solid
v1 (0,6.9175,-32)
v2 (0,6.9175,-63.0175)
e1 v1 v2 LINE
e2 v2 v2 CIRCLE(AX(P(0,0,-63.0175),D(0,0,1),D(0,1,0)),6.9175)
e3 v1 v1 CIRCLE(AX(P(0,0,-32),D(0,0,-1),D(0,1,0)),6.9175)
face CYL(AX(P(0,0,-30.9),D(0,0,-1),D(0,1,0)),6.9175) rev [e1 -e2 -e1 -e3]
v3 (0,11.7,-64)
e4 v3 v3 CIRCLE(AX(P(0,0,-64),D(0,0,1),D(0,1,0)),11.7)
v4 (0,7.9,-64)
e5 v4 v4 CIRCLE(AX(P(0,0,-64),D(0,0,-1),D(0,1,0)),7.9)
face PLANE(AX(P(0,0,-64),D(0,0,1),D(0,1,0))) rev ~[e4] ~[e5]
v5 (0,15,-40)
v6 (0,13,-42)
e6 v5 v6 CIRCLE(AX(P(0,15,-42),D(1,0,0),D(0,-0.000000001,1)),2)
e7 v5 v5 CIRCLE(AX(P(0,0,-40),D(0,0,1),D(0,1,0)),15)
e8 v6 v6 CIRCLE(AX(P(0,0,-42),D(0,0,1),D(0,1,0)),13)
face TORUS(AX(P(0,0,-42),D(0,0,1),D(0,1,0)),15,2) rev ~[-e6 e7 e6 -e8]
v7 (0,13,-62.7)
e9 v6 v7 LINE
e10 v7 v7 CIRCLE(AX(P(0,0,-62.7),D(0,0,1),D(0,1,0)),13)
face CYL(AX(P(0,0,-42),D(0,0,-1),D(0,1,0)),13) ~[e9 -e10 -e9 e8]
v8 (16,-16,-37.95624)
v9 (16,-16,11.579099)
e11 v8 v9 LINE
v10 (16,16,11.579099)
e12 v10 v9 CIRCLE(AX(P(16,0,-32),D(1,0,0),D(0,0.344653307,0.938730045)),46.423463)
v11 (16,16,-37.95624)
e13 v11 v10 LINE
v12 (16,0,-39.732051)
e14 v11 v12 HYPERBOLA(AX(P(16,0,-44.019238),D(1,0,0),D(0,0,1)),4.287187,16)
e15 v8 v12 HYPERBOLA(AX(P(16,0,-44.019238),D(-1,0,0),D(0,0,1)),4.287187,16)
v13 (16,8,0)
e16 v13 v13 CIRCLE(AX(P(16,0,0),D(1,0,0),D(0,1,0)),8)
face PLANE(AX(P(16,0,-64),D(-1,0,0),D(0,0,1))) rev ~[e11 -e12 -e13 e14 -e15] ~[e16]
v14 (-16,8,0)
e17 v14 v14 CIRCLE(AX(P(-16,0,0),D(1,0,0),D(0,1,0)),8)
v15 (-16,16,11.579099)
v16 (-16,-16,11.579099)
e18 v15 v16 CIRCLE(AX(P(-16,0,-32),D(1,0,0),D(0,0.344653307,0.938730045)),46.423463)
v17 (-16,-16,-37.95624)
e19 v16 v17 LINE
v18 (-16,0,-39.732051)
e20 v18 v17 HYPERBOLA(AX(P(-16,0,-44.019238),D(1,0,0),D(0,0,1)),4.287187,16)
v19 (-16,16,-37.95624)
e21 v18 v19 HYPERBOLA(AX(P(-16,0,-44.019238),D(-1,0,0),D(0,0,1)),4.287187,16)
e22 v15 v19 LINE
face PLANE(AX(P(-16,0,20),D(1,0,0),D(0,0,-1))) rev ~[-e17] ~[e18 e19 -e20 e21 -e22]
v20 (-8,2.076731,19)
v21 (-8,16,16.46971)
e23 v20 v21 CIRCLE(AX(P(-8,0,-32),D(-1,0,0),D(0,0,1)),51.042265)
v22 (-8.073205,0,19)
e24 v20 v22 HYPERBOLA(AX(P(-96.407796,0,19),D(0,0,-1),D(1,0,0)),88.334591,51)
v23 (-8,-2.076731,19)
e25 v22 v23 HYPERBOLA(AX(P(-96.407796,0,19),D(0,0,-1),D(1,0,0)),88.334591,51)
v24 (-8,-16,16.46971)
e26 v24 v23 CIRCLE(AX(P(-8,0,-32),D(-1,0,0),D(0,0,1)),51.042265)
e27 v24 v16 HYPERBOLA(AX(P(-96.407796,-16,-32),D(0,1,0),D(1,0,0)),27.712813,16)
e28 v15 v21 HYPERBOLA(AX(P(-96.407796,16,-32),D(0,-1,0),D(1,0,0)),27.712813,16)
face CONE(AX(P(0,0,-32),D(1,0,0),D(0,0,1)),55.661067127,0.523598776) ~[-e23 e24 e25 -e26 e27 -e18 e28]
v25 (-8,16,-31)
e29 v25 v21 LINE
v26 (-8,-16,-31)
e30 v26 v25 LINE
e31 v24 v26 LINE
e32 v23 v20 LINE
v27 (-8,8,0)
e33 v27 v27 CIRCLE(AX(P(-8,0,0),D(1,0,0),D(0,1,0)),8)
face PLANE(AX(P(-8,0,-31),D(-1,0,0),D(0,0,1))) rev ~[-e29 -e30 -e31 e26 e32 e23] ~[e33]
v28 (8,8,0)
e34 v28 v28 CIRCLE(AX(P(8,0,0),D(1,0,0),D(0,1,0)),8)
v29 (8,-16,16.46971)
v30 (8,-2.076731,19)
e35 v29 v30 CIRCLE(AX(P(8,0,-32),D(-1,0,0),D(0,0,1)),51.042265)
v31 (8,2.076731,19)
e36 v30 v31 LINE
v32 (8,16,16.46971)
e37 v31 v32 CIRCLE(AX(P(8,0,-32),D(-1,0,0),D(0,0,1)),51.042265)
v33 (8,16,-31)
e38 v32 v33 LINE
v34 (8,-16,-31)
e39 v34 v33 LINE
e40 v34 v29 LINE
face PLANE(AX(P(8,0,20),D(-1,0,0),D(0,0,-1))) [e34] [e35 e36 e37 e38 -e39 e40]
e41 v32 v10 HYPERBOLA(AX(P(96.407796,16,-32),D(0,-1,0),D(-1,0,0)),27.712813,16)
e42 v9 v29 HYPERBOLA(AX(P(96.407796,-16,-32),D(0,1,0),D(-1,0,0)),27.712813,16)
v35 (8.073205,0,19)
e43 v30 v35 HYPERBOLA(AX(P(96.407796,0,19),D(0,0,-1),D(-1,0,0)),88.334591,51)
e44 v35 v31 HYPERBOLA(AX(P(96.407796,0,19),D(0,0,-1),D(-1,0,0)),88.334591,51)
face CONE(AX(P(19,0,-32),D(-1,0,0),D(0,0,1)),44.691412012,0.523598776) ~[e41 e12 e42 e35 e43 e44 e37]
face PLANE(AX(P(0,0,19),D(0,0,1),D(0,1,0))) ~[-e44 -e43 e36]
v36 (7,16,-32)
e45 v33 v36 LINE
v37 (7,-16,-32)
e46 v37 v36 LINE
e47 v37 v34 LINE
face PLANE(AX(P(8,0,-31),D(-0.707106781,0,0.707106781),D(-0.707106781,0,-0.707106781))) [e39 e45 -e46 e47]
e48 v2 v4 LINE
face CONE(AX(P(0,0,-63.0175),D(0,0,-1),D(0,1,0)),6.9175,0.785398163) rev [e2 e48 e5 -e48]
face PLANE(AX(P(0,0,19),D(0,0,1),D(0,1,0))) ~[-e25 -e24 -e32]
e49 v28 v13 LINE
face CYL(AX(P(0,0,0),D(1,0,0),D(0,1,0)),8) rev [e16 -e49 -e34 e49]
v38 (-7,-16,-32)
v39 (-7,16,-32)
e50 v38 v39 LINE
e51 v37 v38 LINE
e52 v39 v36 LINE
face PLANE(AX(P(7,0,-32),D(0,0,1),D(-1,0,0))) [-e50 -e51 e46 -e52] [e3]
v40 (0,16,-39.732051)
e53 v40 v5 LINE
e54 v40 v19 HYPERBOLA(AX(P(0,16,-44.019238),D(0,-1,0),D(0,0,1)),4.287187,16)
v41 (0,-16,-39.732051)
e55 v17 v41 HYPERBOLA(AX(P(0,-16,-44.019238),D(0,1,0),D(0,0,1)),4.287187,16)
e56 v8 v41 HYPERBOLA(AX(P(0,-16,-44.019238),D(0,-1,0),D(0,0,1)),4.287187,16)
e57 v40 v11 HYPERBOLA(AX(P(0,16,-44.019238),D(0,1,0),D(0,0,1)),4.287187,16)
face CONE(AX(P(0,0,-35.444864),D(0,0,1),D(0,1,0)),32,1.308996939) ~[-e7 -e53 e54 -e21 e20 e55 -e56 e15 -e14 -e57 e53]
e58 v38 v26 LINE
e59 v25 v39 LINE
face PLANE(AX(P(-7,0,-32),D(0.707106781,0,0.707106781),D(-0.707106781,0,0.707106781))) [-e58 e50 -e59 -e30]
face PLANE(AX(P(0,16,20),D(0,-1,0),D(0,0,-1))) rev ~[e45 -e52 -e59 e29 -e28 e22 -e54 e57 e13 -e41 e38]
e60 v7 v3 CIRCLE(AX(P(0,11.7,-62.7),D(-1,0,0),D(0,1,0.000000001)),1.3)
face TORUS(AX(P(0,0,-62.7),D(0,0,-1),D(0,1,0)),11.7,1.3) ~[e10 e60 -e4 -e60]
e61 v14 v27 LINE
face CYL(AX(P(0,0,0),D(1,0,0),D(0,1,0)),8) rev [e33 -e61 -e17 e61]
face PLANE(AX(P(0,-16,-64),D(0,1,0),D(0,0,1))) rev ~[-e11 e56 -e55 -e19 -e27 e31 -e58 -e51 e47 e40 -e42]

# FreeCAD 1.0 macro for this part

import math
import FreeCAD as App
import Part
import Sketcher
Q = App.Units.Quantity


def add_polygon(sketch, points):
    """Adds a closed chain of lines whose ends are joined by coincident constraints."""
    first, n = sketch.GeometryCount, len(points)
    for a, b in zip(points, points[1:] + points[:1]):
        sketch.addGeometry(Part.LineSegment(App.Vector(*a, 0), App.Vector(*b, 0)), False)
    for i in range(n):
        sketch.addConstraint(Sketcher.Constraint("Coincident", first + i, 2, first + (i + 1) % n, 1))

doc = App.newDocument("Part")
body = doc.addObject("PartDesign::Body", "Body")

sketch1 = doc.addObject("Sketcher::SketchObject", "Sketch")
body.addObject(sketch1)
sketch1.AttachmentSupport = (doc.YZ_Plane, [""])
sketch1.MapMode = "FlatFace"
sketch1.addGeometry([
    Part.LineSegment(App.Vector(32, 19, 0), App.Vector(0, 19, 0)),
    Part.LineSegment(App.Vector(0, 19, 0), App.Vector(0, -64, 0)),
    Part.LineSegment(App.Vector(0, -64, 0), App.Vector(11.7, -64, 0)),
    Part.ArcOfCircle(Part.Circle(App.Vector(11.7, -62.7, 0), App.Vector(0, 0, 1), 1.3), math.radians(-90), math.radians(0)),
    Part.LineSegment(App.Vector(13, -62.7, 0), App.Vector(13, -42, 0)),
    Part.ArcOfCircle(Part.Circle(App.Vector(15, -42, 0), App.Vector(0, 0, 1), 2), math.radians(90), math.radians(180)),
    Part.LineSegment(App.Vector(15, -40, 0), App.Vector(32, -35.4, 0)),
    Part.LineSegment(App.Vector(32, -35.4, 0), App.Vector(32, 19, 0)),
], False)
sketch1.addConstraint([
    Sketcher.Constraint("Coincident", 0, 2, 1, 1),
    Sketcher.Constraint("Coincident", 1, 2, 2, 1),
    Sketcher.Constraint("Tangent", 2, 2, 3, 1),
    Sketcher.Constraint("Tangent", 3, 2, 4, 1),
    Sketcher.Constraint("Tangent", 4, 2, 5, 2),
    Sketcher.Constraint("Coincident", 5, 1, 6, 1),
    Sketcher.Constraint("Coincident", 6, 2, 7, 1),
    Sketcher.Constraint("Coincident", 7, 2, 0, 1),
    Sketcher.Constraint("Horizontal", 0),
    Sketcher.Constraint("Vertical", 1),
    Sketcher.Constraint("Horizontal", 2),
    Sketcher.Constraint("Vertical", 4),
    Sketcher.Constraint("Vertical", 7),
    Sketcher.Constraint("PointOnObject", 0, 2, -2),
    Sketcher.Constraint("Radius", 5, Q("2 mm")),
    Sketcher.Constraint("Radius", 3, Q("1.3 mm")),
    Sketcher.Constraint("DistanceX", 0, 2, 0, 1, Q("32 mm")),
    Sketcher.Constraint("DistanceY", 1, 2, 1, 1, Q("83 mm")),
    Sketcher.Constraint("Angle", 6, Q("15 deg")),
    Sketcher.Constraint("DistanceX", 2, 1, 2, 2, Q("11.7 mm")),
    Sketcher.Constraint("DistanceY", 4, 1, 4, 2, Q("20.7 mm")),
    Sketcher.Constraint("DistanceY", 5, 3, -1, 1, Q("42 mm")),
    Sketcher.Constraint("DistanceX", -1, 1, 5, 1, Q("15 mm")),
])
revolution = doc.addObject("PartDesign::Revolution", "Revolution")
body.addObject(revolution)
revolution.Profile = sketch1
revolution.ReferenceAxis = (sketch1, ["V_Axis"])
revolution.Angle = 360

sketch2 = doc.addObject("Sketcher::SketchObject", "Sketch001")
body.addObject(sketch2)
sketch2.AttachmentSupport = (doc.XZ_Plane, [""])
sketch2.MapMode = "FlatFace"
add_polygon(sketch2, [(-8, -31), (-8, 20), (8, 20), (8, -31), (7, -32), (-7, -32)])
sketch2.addConstraint([
    Sketcher.Constraint("Vertical", 0),
    Sketcher.Constraint("Horizontal", 1),
    Sketcher.Constraint("Vertical", 2),
    Sketcher.Constraint("Horizontal", 4),
    Sketcher.Constraint("Symmetric", 2, 2, 5, 2, -2),
    Sketcher.Constraint("Perpendicular", 3, 5),
    Sketcher.Constraint("Equal", 3, 5),
    Sketcher.Constraint("DistanceX", 1, 1, 1, 2, Q("16 mm")),
    Sketcher.Constraint("DistanceX", 4, 2, 4, 1, Q("14 mm")),
    Sketcher.Constraint("DistanceY", 0, 1, 0, 2, Q("51 mm")),
    Sketcher.Constraint("DistanceY", -1, 1, 0, 2, Q("20 mm")),
])
pocket1 = doc.addObject("PartDesign::Pocket", "Pocket")
body.addObject(pocket1)
pocket1.Profile = sketch2
pocket1.Type = "ThroughAll"
pocket1.Midplane = True

sketch3 = doc.addObject("Sketcher::SketchObject", "Sketch002")
body.addObject(sketch3)
sketch3.AttachmentSupport = (doc.YZ_Plane, [""])
sketch3.MapMode = "FlatFace"
add_polygon(sketch3, [(-48, 52), (-48, -64), (-16, -64), (-16, 20), (16, 20), (16, -64), (48, -64), (48, 52)])
sketch3.addConstraint([
    Sketcher.Constraint("Vertical", 0),
    Sketcher.Constraint("Horizontal", 1),
    Sketcher.Constraint("Vertical", 2),
    Sketcher.Constraint("Horizontal", 3),
    Sketcher.Constraint("Vertical", 4),
    Sketcher.Constraint("Horizontal", 5),
    Sketcher.Constraint("Vertical", 6),
    Sketcher.Constraint("Horizontal", 7),
    Sketcher.Constraint("Symmetric", 1, 2, 4, 2, -2),
    Sketcher.Constraint("Equal", 1, 3),
    Sketcher.Constraint("Equal", 3, 5),
    Sketcher.Constraint("DistanceX", 1, 1, 1, 2, Q("32 mm")),
    Sketcher.Constraint("DistanceY", 0, 2, 0, 1, Q("116 mm")),
    Sketcher.Constraint("DistanceY", 2, 1, 2, 2, Q("84 mm")),
    Sketcher.Constraint("DistanceY", 0, 2, -1, 1, Q("64 mm")),
])
pocket2 = doc.addObject("PartDesign::Pocket", "Pocket001")
body.addObject(pocket2)
pocket2.Profile = sketch3
pocket2.Type = "ThroughAll"
pocket2.Midplane = True

sketch4 = doc.addObject("Sketcher::SketchObject", "Sketch003")
body.addObject(sketch4)
sketch4.AttachmentSupport = (doc.XZ_Plane, [""])
sketch4.MapMode = "FlatFace"
add_polygon(sketch4, [(-48, 52), (48, 52), (48, -64), (16, -64), (16, 20), (-16, 20), (-16, -64), (-48, -64)])
sketch4.addConstraint([
    Sketcher.Constraint("Horizontal", 0),
    Sketcher.Constraint("Vertical", 1),
    Sketcher.Constraint("Horizontal", 2),
    Sketcher.Constraint("Vertical", 3),
    Sketcher.Constraint("Horizontal", 4),
    Sketcher.Constraint("Vertical", 5),
    Sketcher.Constraint("Horizontal", 6),
    Sketcher.Constraint("Vertical", 7),
    Sketcher.Constraint("Symmetric", 2, 2, 5, 2, -2),
    Sketcher.Constraint("Equal", 2, 4),
    Sketcher.Constraint("Equal", 4, 6),
    Sketcher.Constraint("DistanceX", 0, 1, 0, 2, Q("96 mm")),
    Sketcher.Constraint("DistanceY", 1, 2, 1, 1, Q("116 mm")),
    Sketcher.Constraint("DistanceY", 3, 1, 3, 2, Q("84 mm")),
    Sketcher.Constraint("DistanceY", -1, 1, 0, 2, Q("52 mm")),
])
pocket3 = doc.addObject("PartDesign::Pocket", "Pocket002")
body.addObject(pocket3)
pocket3.Profile = sketch4
pocket3.Type = "ThroughAll"
pocket3.Midplane = True

sketch5 = doc.addObject("Sketcher::SketchObject", "Sketch004")
body.addObject(sketch5)
sketch5.AttachmentSupport = (doc.XY_Plane, [""])
sketch5.MapMode = "FlatFace"
add_polygon(sketch5, [(-20, 8), (-20, 0), (20, 0), (20, 8)])
sketch5.addConstraint([
    Sketcher.Constraint("Vertical", 0),
    Sketcher.Constraint("Horizontal", 1),
    Sketcher.Constraint("Vertical", 2),
    Sketcher.Constraint("Horizontal", 3),
    Sketcher.Constraint("Symmetric", 0, 2, 1, 2, -1, 1),
    Sketcher.Constraint("DistanceY", 0, 2, 0, 1, Q("8 mm")),
    Sketcher.Constraint("DistanceX", 1, 1, 1, 2, Q("39.5 mm")),
])
groove = doc.addObject("PartDesign::Groove", "Groove")
body.addObject(groove)
groove.Profile = sketch5
groove.ReferenceAxis = (sketch5, ["H_Axis"])
groove.Angle = 360

sketch6 = doc.addObject("Sketcher::SketchObject", "Sketch005")
body.addObject(sketch6)
sketch6.AttachmentSupport = (doc.YZ_Plane, [""])
sketch6.MapMode = "FlatFace"
add_polygon(sketch6, [(6.9, -30.9), (0, -30.9), (0, -64.1), (8, -64.1), (6.9, -63)])
sketch6.addConstraint([
    Sketcher.Constraint("Horizontal", 0),
    Sketcher.Constraint("Vertical", 1),
    Sketcher.Constraint("Horizontal", 2),
    Sketcher.Constraint("Vertical", 4),
    Sketcher.Constraint("PointOnObject", 0, 2, -2),
    Sketcher.Constraint("DistanceX", 2, 1, 2, 2, Q("8 mm")),
    Sketcher.Constraint("Angle", 3, Q("135 deg")),
    Sketcher.Constraint("DistanceY", 1, 2, 1, 1, Q("33.2 mm")),
    Sketcher.Constraint("DistanceY", 0, 2, -1, 1, Q("30.9 mm")),
    Sketcher.Constraint("DistanceX", 0, 2, 0, 1, Q("6.9175 mm")),
])
groove2 = doc.addObject("PartDesign::Groove", "Groove001")
body.addObject(groove2)
groove2.Profile = sketch6
groove2.ReferenceAxis = (sketch6, ["V_Axis"])
groove2.Angle = 360

sketch7 = doc.addObject("Sketcher::SketchObject", "Sketch006")
body.addObject(sketch7)
sketch7.AttachmentSupport = (doc.XZ_Plane, [""])
sketch7.MapMode = "FlatFace"
add_polygon(sketch7, [(-19, 50), (0, 61), (19, 50), (19, 13), (0, 24), (-19, 13)])
sketch7.addGeometry(Part.LineSegment(App.Vector(-19, -32, 0), App.Vector(19, -32, 0)), True)
sketch7.addConstraint([
    Sketcher.Constraint("Vertical", 2),
    Sketcher.Constraint("Vertical", 5),
    Sketcher.Constraint("Horizontal", 6),
    Sketcher.Constraint("Symmetric", 2, 2, 4, 2, -2),
    Sketcher.Constraint("PointOnObject", 0, 2, -2),
    Sketcher.Constraint("PointOnObject", 3, 2, -2),
    Sketcher.Constraint("Parallel", 1, 3),
    Sketcher.Constraint("Parallel", 0, 4),
    Sketcher.Constraint("Vertical", 5, 2, 6, 1),
    Sketcher.Constraint("Vertical", 2, 2, 6, 2),
    Sketcher.Constraint("DistanceX", 6, 1, 6, 2, Q("38 mm")),
    Sketcher.Constraint("Angle", 0, Q("30 deg")),
    Sketcher.Constraint("DistanceY", 6, 1, -1, 1, Q("32 mm")),
    Sketcher.Constraint("DistanceY", 2, 2, 2, 1, Q("36.950417 mm")),
    Sketcher.Constraint("DistanceY", -1, 1, 1, 2, Q("49.641829 mm")),
])
groove3 = doc.addObject("PartDesign::Groove", "Groove002")
body.addObject(groove3)
groove3.Profile = sketch7
groove3.ReferenceAxis = (sketch7, ["Axis0"])
groove3.Angle = 90

sketch8 = doc.addObject("Sketcher::SketchObject", "Sketch007")
body.addObject(sketch8)
sketch8.AttachmentSupport = (doc.XZ_Plane, [""])
sketch8.MapMode = "FlatFace"
add_polygon(sketch8, [(-19, 50), (0, 61), (19, 50), (19, 13), (0, 24), (-19, 13)])
sketch8.addGeometry(Part.LineSegment(App.Vector(19, -32, 0), App.Vector(-19, -32, 0)), True)
sketch8.addConstraint([
    Sketcher.Constraint("Vertical", 2),
    Sketcher.Constraint("Vertical", 5),
    Sketcher.Constraint("Horizontal", 6),
    Sketcher.Constraint("Symmetric", 2, 2, 4, 2, -2),
    Sketcher.Constraint("PointOnObject", 0, 2, -2),
    Sketcher.Constraint("PointOnObject", 3, 2, -2),
    Sketcher.Constraint("Parallel", 1, 3),
    Sketcher.Constraint("Parallel", 0, 4),
    Sketcher.Constraint("Vertical", 2, 2, 6, 1),
    Sketcher.Constraint("Vertical", 5, 2, 6, 2),
    Sketcher.Constraint("DistanceX", 6, 2, 6, 1, Q("38 mm")),
    Sketcher.Constraint("Angle", 0, Q("30 deg")),
    Sketcher.Constraint("DistanceY", 6, 1, -1, 1, Q("32 mm")),
    Sketcher.Constraint("DistanceY", 2, 2, 2, 1, Q("36.950417 mm")),
    Sketcher.Constraint("DistanceY", -1, 1, 1, 2, Q("49.641829 mm")),
])
groove4 = doc.addObject("PartDesign::Groove", "Groove003")
body.addObject(groove4)
groove4.Profile = sketch8
groove4.ReferenceAxis = (sketch8, ["Axis0"])
groove4.Angle = 90

doc.recompute()
